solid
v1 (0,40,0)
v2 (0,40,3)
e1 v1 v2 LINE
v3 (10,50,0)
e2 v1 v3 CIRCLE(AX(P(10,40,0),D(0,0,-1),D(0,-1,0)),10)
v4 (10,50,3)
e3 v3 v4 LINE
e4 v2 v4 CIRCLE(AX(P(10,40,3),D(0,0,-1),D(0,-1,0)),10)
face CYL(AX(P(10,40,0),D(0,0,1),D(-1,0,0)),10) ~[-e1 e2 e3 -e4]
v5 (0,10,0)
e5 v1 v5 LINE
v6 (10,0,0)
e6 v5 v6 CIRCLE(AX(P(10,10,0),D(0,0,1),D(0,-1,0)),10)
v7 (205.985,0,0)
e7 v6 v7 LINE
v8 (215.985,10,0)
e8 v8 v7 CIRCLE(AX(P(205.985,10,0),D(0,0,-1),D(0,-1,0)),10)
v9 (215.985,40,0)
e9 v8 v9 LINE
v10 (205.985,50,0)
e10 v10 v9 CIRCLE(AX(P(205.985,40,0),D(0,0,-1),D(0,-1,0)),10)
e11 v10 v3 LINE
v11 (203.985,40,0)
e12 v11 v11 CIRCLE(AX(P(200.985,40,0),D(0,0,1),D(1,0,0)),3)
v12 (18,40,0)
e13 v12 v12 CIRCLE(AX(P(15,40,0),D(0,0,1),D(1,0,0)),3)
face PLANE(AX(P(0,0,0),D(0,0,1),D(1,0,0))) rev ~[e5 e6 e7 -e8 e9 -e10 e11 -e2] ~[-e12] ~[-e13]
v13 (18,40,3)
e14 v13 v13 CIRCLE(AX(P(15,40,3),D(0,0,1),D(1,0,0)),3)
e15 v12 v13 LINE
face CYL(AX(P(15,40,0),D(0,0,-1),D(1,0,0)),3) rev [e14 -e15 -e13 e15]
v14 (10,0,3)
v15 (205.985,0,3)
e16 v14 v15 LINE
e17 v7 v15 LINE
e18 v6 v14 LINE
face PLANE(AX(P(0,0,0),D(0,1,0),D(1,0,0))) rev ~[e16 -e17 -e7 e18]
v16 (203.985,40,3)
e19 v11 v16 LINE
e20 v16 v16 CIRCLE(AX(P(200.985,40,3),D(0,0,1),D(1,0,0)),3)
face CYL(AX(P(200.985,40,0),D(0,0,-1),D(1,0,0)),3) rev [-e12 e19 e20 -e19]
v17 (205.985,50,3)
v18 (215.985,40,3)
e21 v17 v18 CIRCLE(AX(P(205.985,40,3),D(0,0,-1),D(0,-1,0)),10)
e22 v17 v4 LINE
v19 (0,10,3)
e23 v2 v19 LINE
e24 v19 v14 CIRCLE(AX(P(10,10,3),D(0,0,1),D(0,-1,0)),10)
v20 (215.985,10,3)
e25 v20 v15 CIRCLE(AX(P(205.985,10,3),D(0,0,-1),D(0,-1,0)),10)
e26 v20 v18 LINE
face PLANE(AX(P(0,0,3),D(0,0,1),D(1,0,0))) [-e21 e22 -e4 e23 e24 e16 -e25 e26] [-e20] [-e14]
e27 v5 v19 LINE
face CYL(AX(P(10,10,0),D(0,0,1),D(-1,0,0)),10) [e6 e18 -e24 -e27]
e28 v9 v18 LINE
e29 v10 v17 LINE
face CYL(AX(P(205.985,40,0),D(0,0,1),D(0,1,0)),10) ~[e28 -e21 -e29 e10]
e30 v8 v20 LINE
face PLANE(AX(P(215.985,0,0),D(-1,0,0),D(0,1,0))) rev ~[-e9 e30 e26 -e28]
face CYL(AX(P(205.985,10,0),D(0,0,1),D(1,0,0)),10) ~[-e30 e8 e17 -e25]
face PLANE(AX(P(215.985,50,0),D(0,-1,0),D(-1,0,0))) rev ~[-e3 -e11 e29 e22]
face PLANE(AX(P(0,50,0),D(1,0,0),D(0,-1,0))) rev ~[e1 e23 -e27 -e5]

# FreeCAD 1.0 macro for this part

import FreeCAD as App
import Part
import Sketcher
from FreeCAD import Vector
Q = App.Units.Quantity


def edges_at(feature, points):
    """Names of the edges that pass closest to the given points."""
    edges = feature.Shape.Edges
    near = lambda p: min(range(len(edges)), key=lambda i: edges[i].distToShape(Part.Vertex(*p))[0])
    return sorted({f"Edge{near(p) + 1}" for p in points})


def add_polygon(sketch, points):
    """Adds a closed chain of lines whose ends are joined by coincident constraints."""
    first, n = sketch.GeometryCount, len(points)
    for a, b in zip(points, points[1:] + points[:1]):
        sketch.addGeometry(Part.LineSegment(App.Vector(*a, 0), App.Vector(*b, 0)), False)
    for i in range(n):
        sketch.addConstraint(Sketcher.Constraint("Coincident", first + i, 2, first + (i + 1) % n, 1))

doc = App.newDocument("Part")
params = doc.addObject("Spreadsheet::Sheet", "Params")
for row, (alias, value) in enumerate([
    ("sketch1_diameter", "6 mm"),
    ("sketch1_height", "50 mm"),
    ("pad1_length", "3 mm"),
    ("fillet_radius", "10 mm"),
], start=1):
    params.set(f"A{row}", alias)
    params.set(f"B{row}", "=" + value)
    params.setAlias(f"B{row}", alias)

body = doc.addObject("PartDesign::Body", "Body")

# Sketch on XY plane
sketch1 = body.newObject("Sketcher::SketchObject", "Sketch")
sketch1.AttachmentSupport = (doc.getObject("XY_Plane"), [""])
sketch1.MapMode = "FlatFace"
add_polygon(sketch1, [(0, 50), (0, 0), (216, 0), (216, 50)])  # lines 0-3
sketch1.addGeometry(Part.Circle(Vector(15, 40, 0), Vector(0, 0, 1), 3), False)  # 4
sketch1.addGeometry(Part.Circle(Vector(201, 40, 0), Vector(0, 0, 1), 3), False)  # 5
sketch1.addConstraint(Sketcher.Constraint("Vertical", 0))
sketch1.addConstraint(Sketcher.Constraint("Horizontal", 1))
sketch1.addConstraint(Sketcher.Constraint("Vertical", 2))
sketch1.addConstraint(Sketcher.Constraint("Horizontal", 3))
sketch1.addConstraint(Sketcher.Constraint("Coincident", 0, 2, -1, 1))
sketch1.addConstraint(Sketcher.Constraint("Equal", 4, 5))
sketch1.addConstraint(Sketcher.Constraint("Horizontal", 4, 3, 5, 3))
sketch1.addConstraint(Sketcher.Constraint("Diameter", 4, Q("6 mm")))
sketch1.addConstraint(Sketcher.Constraint("DistanceY", 0, 2, 0, 1, Q("50 mm")))
sketch1.addConstraint(Sketcher.Constraint("DistanceX", -1, 1, 4, 3, Q("15 mm")))
sketch1.addConstraint(Sketcher.Constraint("DistanceX", 5, 3, 1, 2, Q("15 mm")))
sketch1.addConstraint(Sketcher.Constraint("DistanceY", 5, 3, 2, 2, Q("10 mm")))
sketch1.addConstraint(Sketcher.Constraint("DistanceX", 1, 1, 1, 2, Q("215.985 mm")))
sketch1.setExpression("Constraints[11]", "Params.sketch1_diameter")
sketch1.setExpression("Constraints[12]", "Params.sketch1_height")
pad1 = body.newObject("PartDesign::Pad", "Pad")
pad1.Profile = sketch1
pad1.setExpression("Length", "Params.pad1_length")
doc.recompute()

fillet = body.newObject("PartDesign::Fillet", "Fillet")
fillet.Base = (pad1, edges_at(pad1, [
    (215.985, 50, 1.5),
    (0, 50, 1.5),
    (215.985, 0, 1.5),
    (0, 0, 1.5),
]))
fillet.setExpression("Radius", "Params.fillet_radius")

doc.recompute()
